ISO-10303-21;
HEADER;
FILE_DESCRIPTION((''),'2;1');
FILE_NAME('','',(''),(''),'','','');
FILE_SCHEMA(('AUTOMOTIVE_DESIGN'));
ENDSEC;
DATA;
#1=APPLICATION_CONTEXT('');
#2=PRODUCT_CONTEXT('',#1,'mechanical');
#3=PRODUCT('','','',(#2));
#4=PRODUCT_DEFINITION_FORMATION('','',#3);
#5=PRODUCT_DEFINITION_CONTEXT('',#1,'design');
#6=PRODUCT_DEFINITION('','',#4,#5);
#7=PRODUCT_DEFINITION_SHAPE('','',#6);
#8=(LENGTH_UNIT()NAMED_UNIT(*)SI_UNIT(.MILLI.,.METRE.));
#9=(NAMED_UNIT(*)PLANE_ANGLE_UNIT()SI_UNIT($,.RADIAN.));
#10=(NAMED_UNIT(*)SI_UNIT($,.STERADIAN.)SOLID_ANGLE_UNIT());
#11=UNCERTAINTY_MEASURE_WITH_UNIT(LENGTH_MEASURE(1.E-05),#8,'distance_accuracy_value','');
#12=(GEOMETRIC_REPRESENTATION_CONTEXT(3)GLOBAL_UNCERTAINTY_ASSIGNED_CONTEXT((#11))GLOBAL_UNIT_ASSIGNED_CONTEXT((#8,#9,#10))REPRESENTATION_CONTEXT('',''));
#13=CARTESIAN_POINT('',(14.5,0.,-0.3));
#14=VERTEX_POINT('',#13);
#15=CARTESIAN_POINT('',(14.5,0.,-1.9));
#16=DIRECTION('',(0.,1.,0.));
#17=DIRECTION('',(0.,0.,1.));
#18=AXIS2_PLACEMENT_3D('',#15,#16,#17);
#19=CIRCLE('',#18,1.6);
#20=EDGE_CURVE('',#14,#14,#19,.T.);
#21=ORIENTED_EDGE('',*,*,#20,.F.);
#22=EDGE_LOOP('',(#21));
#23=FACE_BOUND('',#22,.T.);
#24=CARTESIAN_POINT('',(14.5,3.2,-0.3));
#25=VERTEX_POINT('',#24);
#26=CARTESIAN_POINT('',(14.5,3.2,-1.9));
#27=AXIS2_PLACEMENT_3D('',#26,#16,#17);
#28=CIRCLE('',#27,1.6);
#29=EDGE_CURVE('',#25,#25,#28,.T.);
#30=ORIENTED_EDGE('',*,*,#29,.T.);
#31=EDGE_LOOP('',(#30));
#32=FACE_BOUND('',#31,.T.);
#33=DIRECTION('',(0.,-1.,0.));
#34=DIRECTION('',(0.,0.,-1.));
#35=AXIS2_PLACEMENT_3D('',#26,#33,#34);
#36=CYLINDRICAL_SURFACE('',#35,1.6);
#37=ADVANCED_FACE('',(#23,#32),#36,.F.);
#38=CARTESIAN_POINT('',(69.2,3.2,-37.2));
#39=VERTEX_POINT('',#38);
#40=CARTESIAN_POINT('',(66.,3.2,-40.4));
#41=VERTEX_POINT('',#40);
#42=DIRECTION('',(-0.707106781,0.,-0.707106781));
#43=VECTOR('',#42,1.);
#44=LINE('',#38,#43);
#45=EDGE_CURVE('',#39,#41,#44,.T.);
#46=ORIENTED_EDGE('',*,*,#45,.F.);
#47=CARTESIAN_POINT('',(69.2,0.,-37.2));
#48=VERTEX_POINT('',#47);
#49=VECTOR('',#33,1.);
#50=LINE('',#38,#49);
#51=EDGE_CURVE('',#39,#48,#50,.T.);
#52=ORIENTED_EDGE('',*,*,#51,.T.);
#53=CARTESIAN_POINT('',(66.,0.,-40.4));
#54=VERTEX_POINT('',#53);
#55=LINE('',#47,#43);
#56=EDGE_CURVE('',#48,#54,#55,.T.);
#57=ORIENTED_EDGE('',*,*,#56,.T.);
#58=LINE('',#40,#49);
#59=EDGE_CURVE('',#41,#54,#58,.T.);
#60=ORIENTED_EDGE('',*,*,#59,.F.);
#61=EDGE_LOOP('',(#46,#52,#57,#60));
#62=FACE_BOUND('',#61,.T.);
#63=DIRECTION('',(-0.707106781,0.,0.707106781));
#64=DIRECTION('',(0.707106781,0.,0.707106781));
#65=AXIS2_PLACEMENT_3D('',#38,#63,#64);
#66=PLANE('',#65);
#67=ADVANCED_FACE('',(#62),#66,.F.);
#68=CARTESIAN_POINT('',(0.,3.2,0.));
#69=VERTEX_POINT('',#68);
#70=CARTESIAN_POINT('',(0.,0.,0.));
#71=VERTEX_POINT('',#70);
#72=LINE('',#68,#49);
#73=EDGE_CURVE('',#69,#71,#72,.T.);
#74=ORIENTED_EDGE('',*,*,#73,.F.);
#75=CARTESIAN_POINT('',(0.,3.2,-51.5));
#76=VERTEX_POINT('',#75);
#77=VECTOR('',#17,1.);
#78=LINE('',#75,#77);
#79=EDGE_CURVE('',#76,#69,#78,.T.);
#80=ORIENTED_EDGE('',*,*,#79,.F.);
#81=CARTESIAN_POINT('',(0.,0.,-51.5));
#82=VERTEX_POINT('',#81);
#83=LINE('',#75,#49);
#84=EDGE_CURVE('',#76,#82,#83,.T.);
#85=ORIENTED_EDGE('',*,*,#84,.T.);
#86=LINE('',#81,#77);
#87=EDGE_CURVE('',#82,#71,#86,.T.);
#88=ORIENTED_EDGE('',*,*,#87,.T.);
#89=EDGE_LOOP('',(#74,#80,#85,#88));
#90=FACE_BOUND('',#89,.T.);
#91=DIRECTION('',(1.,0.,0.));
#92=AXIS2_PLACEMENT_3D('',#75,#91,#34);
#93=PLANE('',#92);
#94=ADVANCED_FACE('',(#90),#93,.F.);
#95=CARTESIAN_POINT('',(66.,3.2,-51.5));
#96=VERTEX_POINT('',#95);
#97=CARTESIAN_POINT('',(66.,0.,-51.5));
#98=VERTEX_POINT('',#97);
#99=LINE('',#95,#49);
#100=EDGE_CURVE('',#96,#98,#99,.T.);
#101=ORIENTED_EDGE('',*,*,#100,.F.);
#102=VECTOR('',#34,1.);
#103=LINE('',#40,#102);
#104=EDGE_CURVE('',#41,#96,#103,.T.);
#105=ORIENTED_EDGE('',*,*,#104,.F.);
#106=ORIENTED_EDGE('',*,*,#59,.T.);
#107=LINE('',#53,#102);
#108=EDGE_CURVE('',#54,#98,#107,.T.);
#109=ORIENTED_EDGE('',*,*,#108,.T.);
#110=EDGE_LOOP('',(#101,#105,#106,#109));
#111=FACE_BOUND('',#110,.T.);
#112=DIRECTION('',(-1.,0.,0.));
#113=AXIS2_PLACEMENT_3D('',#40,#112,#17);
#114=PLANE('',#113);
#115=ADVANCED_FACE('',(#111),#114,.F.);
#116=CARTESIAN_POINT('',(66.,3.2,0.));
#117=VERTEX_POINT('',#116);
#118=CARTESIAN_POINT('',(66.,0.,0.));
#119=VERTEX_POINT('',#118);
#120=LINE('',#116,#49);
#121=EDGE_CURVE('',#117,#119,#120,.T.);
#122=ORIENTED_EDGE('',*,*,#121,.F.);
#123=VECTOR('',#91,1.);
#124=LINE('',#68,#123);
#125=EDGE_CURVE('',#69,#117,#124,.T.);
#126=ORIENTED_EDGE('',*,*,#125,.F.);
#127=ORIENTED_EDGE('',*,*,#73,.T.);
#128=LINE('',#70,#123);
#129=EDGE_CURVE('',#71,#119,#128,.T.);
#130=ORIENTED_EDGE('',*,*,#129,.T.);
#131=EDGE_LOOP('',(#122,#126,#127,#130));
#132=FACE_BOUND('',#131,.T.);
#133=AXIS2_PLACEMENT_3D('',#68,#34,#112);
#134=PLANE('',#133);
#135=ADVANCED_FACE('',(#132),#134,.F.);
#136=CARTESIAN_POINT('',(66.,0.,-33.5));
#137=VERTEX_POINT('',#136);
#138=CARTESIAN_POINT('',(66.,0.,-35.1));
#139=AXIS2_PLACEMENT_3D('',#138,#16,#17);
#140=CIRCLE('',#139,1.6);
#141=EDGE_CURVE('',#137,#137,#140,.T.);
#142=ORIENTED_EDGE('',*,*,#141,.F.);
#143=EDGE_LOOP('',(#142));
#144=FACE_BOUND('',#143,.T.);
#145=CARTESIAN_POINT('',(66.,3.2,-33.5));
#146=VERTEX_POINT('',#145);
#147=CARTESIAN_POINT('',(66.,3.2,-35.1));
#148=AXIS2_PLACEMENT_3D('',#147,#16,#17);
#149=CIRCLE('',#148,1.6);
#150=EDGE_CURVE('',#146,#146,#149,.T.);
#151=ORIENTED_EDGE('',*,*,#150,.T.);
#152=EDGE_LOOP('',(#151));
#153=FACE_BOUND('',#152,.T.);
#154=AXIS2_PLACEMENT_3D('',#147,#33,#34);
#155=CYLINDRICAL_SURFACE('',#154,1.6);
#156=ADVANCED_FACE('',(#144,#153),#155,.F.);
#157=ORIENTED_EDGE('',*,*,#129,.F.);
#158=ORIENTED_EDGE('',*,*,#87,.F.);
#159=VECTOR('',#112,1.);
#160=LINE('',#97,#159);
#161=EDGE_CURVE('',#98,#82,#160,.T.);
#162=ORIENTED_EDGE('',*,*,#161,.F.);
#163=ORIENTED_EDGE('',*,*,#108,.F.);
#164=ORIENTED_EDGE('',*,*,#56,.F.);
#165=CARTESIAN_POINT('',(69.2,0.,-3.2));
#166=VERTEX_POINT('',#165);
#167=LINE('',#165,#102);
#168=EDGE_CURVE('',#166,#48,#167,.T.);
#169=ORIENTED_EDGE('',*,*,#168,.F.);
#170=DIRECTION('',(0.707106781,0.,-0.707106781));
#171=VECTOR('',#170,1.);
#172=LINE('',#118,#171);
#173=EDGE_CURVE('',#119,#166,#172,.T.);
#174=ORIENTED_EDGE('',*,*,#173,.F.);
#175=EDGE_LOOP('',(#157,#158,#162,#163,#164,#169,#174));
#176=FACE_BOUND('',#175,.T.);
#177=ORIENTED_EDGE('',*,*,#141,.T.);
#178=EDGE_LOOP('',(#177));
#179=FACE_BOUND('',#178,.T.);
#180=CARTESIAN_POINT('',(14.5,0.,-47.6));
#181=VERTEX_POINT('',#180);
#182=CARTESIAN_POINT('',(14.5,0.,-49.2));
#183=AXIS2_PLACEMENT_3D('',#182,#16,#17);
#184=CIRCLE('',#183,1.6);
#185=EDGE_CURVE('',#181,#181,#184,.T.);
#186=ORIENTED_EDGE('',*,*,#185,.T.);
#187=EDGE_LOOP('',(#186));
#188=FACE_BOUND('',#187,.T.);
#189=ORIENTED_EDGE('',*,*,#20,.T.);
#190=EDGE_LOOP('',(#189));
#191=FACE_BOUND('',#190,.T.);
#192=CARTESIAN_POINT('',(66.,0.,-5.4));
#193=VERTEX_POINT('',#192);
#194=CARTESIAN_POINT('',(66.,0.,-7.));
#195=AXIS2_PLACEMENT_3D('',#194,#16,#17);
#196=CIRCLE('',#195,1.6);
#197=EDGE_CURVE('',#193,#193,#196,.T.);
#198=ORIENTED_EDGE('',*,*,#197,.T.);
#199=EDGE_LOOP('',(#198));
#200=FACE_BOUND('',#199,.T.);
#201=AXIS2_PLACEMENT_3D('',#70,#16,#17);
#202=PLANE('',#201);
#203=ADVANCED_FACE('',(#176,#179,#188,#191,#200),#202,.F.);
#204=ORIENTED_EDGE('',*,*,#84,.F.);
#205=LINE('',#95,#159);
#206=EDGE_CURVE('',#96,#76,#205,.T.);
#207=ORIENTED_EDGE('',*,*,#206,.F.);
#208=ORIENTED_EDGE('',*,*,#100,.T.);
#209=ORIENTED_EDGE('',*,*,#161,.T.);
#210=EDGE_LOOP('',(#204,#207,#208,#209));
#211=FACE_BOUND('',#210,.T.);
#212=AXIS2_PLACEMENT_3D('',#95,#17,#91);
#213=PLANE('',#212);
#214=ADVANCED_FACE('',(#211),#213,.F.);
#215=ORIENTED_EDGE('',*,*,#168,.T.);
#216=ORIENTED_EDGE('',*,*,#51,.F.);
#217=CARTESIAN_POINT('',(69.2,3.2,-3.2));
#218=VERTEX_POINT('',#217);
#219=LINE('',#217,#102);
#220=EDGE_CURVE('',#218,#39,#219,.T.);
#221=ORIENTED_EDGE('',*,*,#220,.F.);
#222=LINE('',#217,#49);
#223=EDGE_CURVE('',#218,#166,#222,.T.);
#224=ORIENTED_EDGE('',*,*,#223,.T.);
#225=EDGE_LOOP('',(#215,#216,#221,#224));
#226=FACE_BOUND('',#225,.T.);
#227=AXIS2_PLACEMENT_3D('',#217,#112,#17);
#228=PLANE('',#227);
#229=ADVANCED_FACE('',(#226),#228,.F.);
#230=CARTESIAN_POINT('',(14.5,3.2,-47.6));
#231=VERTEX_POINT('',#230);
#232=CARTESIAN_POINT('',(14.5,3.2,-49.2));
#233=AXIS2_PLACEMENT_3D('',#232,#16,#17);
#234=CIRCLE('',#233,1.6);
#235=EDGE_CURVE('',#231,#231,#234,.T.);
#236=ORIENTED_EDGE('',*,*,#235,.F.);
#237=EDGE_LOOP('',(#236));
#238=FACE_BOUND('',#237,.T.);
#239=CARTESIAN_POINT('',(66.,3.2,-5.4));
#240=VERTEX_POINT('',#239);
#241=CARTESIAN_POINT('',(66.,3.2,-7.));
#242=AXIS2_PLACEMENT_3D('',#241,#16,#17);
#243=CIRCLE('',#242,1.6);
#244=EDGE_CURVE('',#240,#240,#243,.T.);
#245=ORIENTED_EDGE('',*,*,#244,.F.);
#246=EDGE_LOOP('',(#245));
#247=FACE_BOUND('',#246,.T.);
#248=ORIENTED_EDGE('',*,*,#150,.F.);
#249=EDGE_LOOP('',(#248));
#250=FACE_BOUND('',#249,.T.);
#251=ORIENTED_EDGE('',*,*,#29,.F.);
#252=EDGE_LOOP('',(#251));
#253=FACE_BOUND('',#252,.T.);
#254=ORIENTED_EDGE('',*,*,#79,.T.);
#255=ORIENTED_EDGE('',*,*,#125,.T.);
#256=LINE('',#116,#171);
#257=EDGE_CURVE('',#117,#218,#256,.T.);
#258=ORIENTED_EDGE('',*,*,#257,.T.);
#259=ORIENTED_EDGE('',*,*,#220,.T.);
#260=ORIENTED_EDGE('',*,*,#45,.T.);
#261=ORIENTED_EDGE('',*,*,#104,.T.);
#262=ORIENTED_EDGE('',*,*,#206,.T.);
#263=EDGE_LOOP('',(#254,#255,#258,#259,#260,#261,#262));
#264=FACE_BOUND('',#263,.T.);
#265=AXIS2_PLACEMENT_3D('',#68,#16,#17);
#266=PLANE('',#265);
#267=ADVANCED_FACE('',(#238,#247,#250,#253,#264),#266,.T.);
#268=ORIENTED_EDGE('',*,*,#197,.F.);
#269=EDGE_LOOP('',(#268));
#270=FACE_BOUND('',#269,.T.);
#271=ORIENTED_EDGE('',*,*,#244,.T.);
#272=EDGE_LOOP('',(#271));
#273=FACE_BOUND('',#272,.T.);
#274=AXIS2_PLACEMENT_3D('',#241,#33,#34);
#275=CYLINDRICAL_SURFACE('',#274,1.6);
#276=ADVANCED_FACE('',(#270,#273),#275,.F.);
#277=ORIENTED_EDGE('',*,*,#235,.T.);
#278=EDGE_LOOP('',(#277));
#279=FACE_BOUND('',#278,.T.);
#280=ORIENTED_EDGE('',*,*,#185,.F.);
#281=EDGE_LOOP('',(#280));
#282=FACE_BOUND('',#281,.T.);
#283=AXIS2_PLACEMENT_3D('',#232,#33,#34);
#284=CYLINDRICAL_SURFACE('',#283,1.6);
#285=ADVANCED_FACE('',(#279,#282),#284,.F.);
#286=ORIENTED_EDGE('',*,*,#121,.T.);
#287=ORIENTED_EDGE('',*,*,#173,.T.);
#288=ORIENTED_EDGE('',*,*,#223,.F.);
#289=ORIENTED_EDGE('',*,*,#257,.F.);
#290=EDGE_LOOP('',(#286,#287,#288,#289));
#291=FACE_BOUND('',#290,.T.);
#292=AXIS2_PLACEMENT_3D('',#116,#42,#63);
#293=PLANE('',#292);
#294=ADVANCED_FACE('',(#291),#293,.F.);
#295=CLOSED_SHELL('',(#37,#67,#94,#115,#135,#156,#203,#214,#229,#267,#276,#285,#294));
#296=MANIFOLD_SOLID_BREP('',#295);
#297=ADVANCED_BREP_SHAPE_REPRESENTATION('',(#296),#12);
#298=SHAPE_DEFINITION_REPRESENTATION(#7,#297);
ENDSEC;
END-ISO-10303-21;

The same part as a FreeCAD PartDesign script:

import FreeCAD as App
import Part
import Sketcher


def add_polygon(sketch, points):
    """Adds a closed chain of lines whose ends are joined by coincident constraints."""
    first, n = sketch.GeometryCount, len(points)
    for a, b in zip(points, points[1:] + points[:1]):
        sketch.addGeometry(Part.LineSegment(App.Vector(*a, 0), App.Vector(*b, 0)), False)
    for i in range(n):
        sketch.addConstraint(Sketcher.Constraint("Coincident", first + i, 2, first + (i + 1) % n, 1))

doc = App.newDocument("Part")
body = doc.addObject("PartDesign::Body", "Body")

sketch1 = body.newObject("Sketcher::SketchObject", "Sketch")
sketch1.AttachmentSupport = (doc.getObject("XZ_Plane"), [""])
sketch1.MapMode = "FlatFace"
add_polygon(sketch1, [(0, 0), (66, 0), (69.2, -3.2), (69.2, -37.2), (66, -40.4), (66, -51.5), (0, -51.5)])
sketch1.addGeometry(Part.Circle(App.Vector(14.5, -1.9, 0), App.Vector(0, 0, 1), 1.6), False)
sketch1.addGeometry(Part.Circle(App.Vector(66, -7, 0), App.Vector(0, 0, 1), 1.6), False)
sketch1.addGeometry(Part.Circle(App.Vector(14.5, -49.2, 0), App.Vector(0, 0, 1), 1.6), False)
sketch1.addGeometry(Part.Circle(App.Vector(66, -35.1, 0), App.Vector(0, 0, 1), 1.6), False)
sketch1.addConstraint([
    Sketcher.Constraint("Horizontal", 0),
    Sketcher.Constraint("Vertical", 2),
    Sketcher.Constraint("Vertical", 4),
    Sketcher.Constraint("Horizontal", 5),
    Sketcher.Constraint("Vertical", 6),
    Sketcher.Constraint("Coincident", 6, 2, -1, 1),
    Sketcher.Constraint("Equal", 7, 8),
    Sketcher.Constraint("Equal", 8, 9),
    Sketcher.Constraint("Equal", 9, 10),
    Sketcher.Constraint("Perpendicular", 1, 3),
    Sketcher.Constraint("Vertical", 7, 3, 9, 3),
    Sketcher.Constraint("Vertical", 8, 3, 10, 3),
    Sketcher.Constraint("Vertical", 10, 3, 0, 2),
    Sketcher.Constraint("Vertical", 0, 2, 3, 2),
    Sketcher.Constraint("Equal", 1, 3),
    Sketcher.Constraint("Diameter", 7, 3.2),
    Sketcher.Constraint("DistanceX", 0, 1, 0, 2, 66.0),
    Sketcher.Constraint("DistanceY", 2, 2, 2, 1, 34.0),
    Sketcher.Constraint("DistanceY", 4, 2, 4, 1, 11.1),
    Sketcher.Constraint("DistanceY", 6, 1, 6, 2, 51.5),
    Sketcher.Constraint("DistanceY", 8, 3, -1, 1, 7.0),
    Sketcher.Constraint("DistanceY", 9, 3, 1, 2, 46.0),
    Sketcher.Constraint("DistanceX", -1, 1, 7, 3, 14.5),
    Sketcher.Constraint("DistanceY", 7, 3, -1, 1, 1.9),
    Sketcher.Constraint("DistanceY", 10, 3, -1, 1, 35.1),
])
pad1 = body.newObject("PartDesign::Pad", "Pad")
pad1.Profile = sketch1
pad1.Length = 3.2
pad1.Reversed = True

doc.recompute()
